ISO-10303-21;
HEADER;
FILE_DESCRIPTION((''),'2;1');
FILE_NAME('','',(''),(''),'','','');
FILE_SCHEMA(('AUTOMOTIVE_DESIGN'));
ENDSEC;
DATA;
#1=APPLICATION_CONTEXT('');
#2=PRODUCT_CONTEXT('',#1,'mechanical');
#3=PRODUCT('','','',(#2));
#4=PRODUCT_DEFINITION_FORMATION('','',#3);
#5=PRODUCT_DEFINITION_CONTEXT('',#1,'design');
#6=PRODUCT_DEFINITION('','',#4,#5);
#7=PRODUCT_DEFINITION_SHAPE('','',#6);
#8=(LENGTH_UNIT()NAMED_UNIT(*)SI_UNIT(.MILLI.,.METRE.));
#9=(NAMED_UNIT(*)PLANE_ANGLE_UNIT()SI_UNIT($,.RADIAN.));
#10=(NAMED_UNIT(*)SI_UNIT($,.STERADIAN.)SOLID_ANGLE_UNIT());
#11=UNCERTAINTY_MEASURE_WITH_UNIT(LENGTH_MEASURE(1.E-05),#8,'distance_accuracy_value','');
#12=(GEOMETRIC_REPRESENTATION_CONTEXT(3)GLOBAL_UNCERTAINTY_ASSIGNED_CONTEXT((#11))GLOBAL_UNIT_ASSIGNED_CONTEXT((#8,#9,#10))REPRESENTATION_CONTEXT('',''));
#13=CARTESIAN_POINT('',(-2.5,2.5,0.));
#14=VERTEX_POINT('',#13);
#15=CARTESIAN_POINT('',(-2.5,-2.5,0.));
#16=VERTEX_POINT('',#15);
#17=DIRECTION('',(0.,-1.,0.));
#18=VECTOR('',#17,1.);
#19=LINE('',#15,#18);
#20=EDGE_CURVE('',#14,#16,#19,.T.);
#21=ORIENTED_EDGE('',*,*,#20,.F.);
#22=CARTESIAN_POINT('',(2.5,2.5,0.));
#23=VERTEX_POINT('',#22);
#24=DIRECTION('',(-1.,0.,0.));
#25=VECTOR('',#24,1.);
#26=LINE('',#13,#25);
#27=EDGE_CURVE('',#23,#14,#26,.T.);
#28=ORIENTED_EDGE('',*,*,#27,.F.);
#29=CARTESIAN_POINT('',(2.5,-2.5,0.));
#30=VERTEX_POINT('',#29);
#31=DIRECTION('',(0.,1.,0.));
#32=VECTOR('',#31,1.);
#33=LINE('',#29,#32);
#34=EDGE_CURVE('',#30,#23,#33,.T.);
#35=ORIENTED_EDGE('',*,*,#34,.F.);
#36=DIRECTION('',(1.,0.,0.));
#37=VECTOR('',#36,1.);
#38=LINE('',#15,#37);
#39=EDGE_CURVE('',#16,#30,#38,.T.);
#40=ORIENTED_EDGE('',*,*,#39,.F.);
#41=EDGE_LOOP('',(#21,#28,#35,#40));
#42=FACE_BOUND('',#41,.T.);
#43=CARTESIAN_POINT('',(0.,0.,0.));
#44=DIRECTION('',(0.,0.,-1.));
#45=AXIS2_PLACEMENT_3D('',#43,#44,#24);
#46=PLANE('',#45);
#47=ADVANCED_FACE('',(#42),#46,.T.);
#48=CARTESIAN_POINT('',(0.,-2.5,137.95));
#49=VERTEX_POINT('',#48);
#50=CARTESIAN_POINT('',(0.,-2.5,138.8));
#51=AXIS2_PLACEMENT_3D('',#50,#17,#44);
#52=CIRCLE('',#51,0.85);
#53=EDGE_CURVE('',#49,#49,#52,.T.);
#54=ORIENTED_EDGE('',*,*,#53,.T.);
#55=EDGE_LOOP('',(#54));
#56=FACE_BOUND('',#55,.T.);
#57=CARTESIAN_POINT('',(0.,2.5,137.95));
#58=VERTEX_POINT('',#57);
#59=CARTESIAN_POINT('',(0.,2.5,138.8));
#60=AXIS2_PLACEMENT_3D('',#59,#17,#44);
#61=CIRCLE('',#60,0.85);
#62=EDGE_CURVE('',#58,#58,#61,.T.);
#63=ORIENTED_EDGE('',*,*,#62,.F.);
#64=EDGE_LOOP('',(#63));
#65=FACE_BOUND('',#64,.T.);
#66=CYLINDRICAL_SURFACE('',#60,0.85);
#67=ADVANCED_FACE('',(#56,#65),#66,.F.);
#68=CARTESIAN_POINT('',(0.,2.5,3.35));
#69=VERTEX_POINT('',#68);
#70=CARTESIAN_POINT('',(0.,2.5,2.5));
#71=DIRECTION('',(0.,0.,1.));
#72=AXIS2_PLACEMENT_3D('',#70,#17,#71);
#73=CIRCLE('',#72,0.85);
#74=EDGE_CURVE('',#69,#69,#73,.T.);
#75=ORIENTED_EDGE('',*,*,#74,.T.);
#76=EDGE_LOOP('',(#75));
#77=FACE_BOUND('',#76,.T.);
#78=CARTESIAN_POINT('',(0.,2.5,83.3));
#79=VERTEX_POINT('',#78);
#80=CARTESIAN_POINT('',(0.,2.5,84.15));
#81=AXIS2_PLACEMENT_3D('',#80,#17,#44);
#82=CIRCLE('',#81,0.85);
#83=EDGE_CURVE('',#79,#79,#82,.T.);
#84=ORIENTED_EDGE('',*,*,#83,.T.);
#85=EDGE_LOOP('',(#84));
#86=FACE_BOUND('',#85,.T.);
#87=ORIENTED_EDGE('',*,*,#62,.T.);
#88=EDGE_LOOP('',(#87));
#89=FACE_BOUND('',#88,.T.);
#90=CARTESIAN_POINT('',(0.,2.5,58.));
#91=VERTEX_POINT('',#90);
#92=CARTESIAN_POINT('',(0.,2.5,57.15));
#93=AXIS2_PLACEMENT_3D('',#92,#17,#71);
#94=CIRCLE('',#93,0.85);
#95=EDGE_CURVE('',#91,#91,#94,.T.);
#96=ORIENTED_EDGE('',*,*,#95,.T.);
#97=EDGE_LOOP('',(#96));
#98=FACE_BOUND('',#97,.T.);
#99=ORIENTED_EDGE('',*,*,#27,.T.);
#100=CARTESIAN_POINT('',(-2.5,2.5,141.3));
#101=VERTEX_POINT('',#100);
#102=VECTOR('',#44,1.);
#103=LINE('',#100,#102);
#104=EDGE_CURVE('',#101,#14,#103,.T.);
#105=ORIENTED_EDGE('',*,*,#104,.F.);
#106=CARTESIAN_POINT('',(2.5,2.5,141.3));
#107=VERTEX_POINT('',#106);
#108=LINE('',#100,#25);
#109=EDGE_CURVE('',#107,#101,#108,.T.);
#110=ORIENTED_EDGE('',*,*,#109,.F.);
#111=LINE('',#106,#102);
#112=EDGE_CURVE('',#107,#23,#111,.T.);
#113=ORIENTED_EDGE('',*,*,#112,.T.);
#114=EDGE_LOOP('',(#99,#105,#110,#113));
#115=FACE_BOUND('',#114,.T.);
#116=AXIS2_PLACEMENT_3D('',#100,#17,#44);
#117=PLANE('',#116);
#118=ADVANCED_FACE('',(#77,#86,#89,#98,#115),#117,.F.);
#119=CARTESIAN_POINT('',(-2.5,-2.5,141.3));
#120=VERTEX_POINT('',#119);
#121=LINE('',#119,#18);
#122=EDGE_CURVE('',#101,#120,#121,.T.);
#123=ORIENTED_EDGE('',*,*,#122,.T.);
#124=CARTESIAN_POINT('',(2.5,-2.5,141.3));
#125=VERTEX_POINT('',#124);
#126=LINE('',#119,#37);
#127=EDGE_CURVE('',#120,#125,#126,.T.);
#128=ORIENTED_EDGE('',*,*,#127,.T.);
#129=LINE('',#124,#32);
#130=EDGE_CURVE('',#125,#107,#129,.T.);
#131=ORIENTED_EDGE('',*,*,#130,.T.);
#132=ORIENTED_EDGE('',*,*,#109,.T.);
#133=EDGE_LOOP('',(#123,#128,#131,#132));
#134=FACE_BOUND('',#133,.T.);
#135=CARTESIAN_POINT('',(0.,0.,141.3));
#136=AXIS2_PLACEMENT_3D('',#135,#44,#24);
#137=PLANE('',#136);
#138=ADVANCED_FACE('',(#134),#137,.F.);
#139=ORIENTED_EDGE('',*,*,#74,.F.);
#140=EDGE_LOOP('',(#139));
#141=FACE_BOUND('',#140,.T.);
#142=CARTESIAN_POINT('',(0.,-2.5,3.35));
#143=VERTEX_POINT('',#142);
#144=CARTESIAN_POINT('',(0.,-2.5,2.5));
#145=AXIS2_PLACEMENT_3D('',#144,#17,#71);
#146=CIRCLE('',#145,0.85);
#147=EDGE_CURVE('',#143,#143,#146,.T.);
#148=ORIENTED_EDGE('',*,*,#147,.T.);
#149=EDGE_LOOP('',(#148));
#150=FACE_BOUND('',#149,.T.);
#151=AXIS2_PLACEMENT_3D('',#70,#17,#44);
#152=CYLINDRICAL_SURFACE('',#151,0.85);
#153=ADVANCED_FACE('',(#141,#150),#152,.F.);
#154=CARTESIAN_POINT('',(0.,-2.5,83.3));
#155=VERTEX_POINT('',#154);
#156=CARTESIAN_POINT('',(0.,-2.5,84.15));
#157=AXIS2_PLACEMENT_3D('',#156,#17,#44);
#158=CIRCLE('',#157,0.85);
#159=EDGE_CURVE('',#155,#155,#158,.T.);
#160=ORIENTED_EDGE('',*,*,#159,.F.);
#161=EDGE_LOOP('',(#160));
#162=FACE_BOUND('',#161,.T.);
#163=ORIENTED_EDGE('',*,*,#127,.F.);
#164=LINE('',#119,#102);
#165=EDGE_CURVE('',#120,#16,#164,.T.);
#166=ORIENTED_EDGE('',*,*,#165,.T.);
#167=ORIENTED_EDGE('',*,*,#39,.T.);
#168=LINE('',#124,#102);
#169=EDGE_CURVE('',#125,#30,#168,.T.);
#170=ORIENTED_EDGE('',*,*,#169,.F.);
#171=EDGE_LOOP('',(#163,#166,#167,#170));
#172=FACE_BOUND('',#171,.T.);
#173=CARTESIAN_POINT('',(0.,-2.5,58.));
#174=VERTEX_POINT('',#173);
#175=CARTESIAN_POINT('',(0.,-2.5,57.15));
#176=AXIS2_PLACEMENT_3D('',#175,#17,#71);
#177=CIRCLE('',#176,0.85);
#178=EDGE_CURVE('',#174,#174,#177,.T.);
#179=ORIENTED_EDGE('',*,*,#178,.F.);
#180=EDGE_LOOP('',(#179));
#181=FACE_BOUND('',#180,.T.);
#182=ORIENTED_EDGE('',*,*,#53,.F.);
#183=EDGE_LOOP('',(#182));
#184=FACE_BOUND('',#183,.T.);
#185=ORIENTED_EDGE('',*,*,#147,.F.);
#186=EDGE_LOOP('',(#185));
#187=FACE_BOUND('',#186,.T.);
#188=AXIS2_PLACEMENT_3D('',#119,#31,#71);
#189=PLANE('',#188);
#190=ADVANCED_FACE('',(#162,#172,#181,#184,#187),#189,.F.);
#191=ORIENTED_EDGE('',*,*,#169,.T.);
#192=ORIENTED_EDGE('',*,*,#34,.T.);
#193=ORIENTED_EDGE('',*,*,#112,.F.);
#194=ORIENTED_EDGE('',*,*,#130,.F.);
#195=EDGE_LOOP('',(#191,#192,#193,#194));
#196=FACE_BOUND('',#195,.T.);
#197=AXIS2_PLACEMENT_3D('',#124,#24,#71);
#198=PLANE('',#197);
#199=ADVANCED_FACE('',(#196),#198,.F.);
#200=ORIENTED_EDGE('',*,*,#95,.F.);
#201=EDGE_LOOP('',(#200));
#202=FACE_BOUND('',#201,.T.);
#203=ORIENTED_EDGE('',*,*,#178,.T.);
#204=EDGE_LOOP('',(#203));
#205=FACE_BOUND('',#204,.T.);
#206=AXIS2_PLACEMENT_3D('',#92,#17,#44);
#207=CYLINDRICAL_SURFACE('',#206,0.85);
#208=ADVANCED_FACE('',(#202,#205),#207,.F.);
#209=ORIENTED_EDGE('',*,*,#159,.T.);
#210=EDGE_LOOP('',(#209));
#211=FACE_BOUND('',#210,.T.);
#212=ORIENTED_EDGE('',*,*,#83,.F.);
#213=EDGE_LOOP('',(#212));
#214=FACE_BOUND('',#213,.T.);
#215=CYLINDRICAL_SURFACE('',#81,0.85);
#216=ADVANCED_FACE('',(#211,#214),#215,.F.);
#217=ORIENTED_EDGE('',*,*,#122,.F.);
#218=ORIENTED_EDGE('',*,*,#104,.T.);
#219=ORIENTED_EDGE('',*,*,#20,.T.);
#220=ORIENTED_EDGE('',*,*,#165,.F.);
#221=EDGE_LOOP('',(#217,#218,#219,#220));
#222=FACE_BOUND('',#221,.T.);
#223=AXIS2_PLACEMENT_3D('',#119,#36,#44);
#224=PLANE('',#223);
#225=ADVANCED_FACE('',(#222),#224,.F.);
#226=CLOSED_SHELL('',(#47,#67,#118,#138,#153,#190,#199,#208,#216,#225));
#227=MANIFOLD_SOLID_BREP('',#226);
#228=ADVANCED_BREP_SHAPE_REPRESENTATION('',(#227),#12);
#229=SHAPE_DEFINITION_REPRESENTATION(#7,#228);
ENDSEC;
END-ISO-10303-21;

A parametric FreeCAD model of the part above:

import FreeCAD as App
import Part
import Sketcher
from FreeCAD import Vector
Q = App.Units.Quantity

doc = App.newDocument("Part")
body = doc.addObject("PartDesign::Body", "Body")

# Sketch on XY plane
sketch1 = body.newObject("Sketcher::SketchObject", "Sketch")
sketch1.AttachmentSupport = (doc.getObject("XY_Plane"), [""])
sketch1.MapMode = "FlatFace"
sketch1.addGeometry(Part.LineSegment(Vector(-2, 2, 0), Vector(-2, -2, 0)), False)
sketch1.addGeometry(Part.LineSegment(Vector(-2, -2, 0), Vector(2, -2, 0)), False)
sketch1.addGeometry(Part.LineSegment(Vector(2, -2, 0), Vector(2, 2, 0)), False)
sketch1.addGeometry(Part.LineSegment(Vector(2, 2, 0), Vector(-2, 2, 0)), False)
sketch1.addConstraint(Sketcher.Constraint("Coincident", 0, 2, 1, 1))
sketch1.addConstraint(Sketcher.Constraint("Coincident", 1, 2, 2, 1))
sketch1.addConstraint(Sketcher.Constraint("Coincident", 2, 2, 3, 1))
sketch1.addConstraint(Sketcher.Constraint("Coincident", 3, 2, 0, 1))
sketch1.addConstraint(Sketcher.Constraint("Vertical", 0))
sketch1.addConstraint(Sketcher.Constraint("Horizontal", 1))
sketch1.addConstraint(Sketcher.Constraint("Vertical", 2))
sketch1.addConstraint(Sketcher.Constraint("Horizontal", 3))
sketch1.addConstraint(Sketcher.Constraint("Symmetric", 0, 2, 2, 2, -1, 1))
sketch1.addConstraint(Sketcher.Constraint("Equal", 3, 0))
sketch1.addConstraint(Sketcher.Constraint("DistanceX", 1, 1, 1, 2, Q("5 mm")))
pad1 = body.newObject("PartDesign::Pad", "Pad")
pad1.Profile = sketch1
pad1.Length = 141.3

# Sketch on XZ plane
sketch2 = body.newObject("Sketcher::SketchObject", "Sketch001")
sketch2.AttachmentSupport = (doc.getObject("XZ_Plane"), [""])
sketch2.MapMode = "FlatFace"
sketch2.AttachmentOffset = App.Placement(Vector(0, 0, 2.5), App.Rotation())
sketch2.addGeometry(Part.Circle(Vector(0, 138.8, 0), Vector(0, 0, 1), 0.8), False)
sketch2.addGeometry(Part.Circle(Vector(0, 2.5, 0), Vector(0, 0, 1), 0.8), False)
sketch2.addGeometry(Part.Circle(Vector(0, 84.2, 0), Vector(0, 0, 1), 0.8), False)
sketch2.addGeometry(Part.Circle(Vector(0, 57.1, 0), Vector(0, 0, 1), 0.8), False)
sketch2.addConstraint(Sketcher.Constraint("Equal", 0, 1))
sketch2.addConstraint(Sketcher.Constraint("Equal", 1, 2))
sketch2.addConstraint(Sketcher.Constraint("Equal", 2, 3))
sketch2.addConstraint(Sketcher.Constraint("PointOnObject", 0, 3, -2))
sketch2.addConstraint(Sketcher.Constraint("PointOnObject", 1, 3, -2))
sketch2.addConstraint(Sketcher.Constraint("PointOnObject", 2, 3, -2))
sketch2.addConstraint(Sketcher.Constraint("PointOnObject", 3, 3, -2))
sketch2.addConstraint(Sketcher.Constraint("Diameter", 0, Q("1.7 mm")))
sketch2.addConstraint(Sketcher.Constraint("DistanceY", 3, 3, 2, 3, Q("27 mm")))
sketch2.addConstraint(Sketcher.Constraint("DistanceY", -1, 1, 0, 3, Q("138.8 mm")))
sketch2.addConstraint(Sketcher.Constraint("DistanceY", -1, 1, 1, 3, Q("2.5 mm")))
sketch2.addConstraint(Sketcher.Constraint("DistanceY", -1, 1, 2, 3, Q("84.15 mm")))
pocket1 = body.newObject("PartDesign::Pocket", "Pocket")
pocket1.Profile = sketch2
pocket1.Type = "ThroughAll"

doc.recompute()
